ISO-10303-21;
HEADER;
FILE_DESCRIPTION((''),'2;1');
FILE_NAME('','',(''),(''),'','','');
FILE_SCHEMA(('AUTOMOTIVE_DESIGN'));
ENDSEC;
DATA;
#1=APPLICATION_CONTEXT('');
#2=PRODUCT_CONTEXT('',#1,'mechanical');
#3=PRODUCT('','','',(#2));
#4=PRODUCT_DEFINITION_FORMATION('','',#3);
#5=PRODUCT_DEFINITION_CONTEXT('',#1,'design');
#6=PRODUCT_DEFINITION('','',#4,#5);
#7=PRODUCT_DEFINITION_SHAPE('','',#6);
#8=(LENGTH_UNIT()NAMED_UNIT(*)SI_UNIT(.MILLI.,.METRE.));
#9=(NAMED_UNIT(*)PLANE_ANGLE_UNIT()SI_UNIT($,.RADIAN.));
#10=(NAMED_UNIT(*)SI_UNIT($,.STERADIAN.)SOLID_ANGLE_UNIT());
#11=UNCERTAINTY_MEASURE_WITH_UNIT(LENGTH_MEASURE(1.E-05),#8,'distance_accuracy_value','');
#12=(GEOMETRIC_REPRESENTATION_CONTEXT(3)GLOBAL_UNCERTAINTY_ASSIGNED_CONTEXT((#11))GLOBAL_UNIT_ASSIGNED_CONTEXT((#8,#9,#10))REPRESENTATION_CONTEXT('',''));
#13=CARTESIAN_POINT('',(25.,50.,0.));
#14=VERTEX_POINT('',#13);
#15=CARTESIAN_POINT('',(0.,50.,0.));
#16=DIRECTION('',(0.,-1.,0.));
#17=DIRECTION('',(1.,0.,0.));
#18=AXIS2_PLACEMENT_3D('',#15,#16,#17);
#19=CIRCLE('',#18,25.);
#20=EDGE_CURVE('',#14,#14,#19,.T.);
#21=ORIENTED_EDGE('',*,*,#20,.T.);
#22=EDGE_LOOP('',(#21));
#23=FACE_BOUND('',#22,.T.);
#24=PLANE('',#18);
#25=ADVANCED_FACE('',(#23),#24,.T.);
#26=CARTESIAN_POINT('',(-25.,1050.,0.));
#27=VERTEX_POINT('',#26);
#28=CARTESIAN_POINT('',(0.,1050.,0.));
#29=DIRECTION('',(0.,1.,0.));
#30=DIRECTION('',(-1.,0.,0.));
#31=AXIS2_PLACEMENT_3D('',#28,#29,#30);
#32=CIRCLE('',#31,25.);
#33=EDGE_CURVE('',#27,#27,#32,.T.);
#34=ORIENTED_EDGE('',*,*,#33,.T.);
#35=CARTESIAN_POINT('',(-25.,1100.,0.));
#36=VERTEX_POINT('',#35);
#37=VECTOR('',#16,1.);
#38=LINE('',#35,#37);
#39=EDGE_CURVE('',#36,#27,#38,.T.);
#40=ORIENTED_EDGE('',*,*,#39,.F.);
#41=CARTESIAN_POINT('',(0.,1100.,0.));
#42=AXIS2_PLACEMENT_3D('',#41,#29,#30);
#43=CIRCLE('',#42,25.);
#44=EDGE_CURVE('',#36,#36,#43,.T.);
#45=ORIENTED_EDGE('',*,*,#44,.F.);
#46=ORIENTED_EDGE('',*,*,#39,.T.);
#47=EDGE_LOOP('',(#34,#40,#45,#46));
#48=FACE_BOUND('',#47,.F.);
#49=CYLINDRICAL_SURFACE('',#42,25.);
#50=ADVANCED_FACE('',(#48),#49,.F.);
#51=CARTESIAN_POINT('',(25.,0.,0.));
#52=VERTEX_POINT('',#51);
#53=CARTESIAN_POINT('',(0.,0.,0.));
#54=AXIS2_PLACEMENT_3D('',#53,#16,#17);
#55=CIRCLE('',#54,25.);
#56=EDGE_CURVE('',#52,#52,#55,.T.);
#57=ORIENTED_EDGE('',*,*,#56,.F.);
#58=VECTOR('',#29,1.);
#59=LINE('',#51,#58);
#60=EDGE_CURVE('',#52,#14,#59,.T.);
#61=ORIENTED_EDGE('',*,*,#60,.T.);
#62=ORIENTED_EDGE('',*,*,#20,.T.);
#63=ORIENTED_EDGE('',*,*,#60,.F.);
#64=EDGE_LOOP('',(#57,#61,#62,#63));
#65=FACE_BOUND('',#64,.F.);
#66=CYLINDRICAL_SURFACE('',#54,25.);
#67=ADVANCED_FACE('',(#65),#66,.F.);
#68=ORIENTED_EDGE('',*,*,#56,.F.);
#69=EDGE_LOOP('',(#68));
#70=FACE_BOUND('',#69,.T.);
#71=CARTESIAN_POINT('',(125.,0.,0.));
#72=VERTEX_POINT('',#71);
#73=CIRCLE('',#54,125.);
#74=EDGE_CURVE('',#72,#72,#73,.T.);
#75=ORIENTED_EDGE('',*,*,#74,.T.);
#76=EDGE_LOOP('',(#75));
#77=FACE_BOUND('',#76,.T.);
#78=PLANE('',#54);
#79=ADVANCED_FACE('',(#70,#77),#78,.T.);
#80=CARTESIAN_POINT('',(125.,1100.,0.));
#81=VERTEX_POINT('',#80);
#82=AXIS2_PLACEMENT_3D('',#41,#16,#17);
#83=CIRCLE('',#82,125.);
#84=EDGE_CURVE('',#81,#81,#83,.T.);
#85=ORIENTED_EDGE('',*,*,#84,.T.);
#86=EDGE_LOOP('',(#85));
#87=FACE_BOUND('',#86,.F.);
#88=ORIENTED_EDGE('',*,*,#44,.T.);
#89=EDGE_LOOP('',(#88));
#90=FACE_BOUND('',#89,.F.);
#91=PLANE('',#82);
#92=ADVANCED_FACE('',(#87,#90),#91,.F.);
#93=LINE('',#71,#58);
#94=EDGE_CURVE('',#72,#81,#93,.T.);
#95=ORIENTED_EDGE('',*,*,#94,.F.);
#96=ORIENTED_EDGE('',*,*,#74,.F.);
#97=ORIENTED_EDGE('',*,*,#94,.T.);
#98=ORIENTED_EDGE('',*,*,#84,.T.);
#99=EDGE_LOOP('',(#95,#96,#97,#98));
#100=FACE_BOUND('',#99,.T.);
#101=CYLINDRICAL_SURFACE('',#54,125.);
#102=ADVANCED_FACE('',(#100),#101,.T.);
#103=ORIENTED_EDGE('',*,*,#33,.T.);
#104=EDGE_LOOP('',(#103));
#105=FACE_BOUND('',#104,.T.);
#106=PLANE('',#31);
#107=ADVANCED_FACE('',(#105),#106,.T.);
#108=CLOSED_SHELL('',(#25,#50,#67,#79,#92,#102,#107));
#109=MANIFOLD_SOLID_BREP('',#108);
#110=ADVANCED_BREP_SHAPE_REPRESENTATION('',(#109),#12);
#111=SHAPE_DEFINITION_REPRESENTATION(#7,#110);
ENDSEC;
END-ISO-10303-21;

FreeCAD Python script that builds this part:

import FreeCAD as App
import Part
import Sketcher
Q = App.Units.Quantity

doc = App.newDocument("Part")
params = doc.addObject("Spreadsheet::Sheet", "Params")
for row, (alias, value) in enumerate([
    ("sketch1_diameter", "250 mm"),
    ("pad1_length", "1100 mm"),
    ("sketch2_diameter", "50 mm"),
    ("pocket1_length", "50 mm"),
    ("sketch3_diameter", "50 mm"),
    ("pocket2_length", "50 mm"),
], start=1):
    params.set(f"A{row}", alias)
    params.set(f"B{row}", "=" + value)
    params.setAlias(f"B{row}", alias)

body = doc.addObject("PartDesign::Body", "Body")

# Sketch on XZ plane
sketch1 = body.newObject("Sketcher::SketchObject", "Sketch")
sketch1.AttachmentSupport = (doc.getObject("XZ_Plane"), [""])
sketch1.MapMode = "FlatFace"
sketch1.addGeometry(Part.Circle(App.Vector(0, 0, 0), App.Vector(0, 0, 1), 125), False)
sketch1.addConstraint(Sketcher.Constraint("Coincident", 0, 3, -1, 1))
sketch1.addConstraint(Sketcher.Constraint("Diameter", 0, Q("250 mm")))
sketch1.setExpression("Constraints[1]", "Params.sketch1_diameter")
pad1 = body.newObject("PartDesign::Pad", "Pad")
pad1.Profile = sketch1
pad1.setExpression("Length", "Params.pad1_length")
pad1.Reversed = True

# Sketch on XZ plane
sketch2 = body.newObject("Sketcher::SketchObject", "Sketch001")
sketch2.AttachmentSupport = (doc.getObject("XZ_Plane"), [""])
sketch2.MapMode = "FlatFace"
sketch2.addGeometry(Part.Circle(App.Vector(0, 0, 0), App.Vector(0, 0, 1), 25), False)
sketch2.addConstraint(Sketcher.Constraint("Coincident", 0, 3, -1, 1))
sketch2.addConstraint(Sketcher.Constraint("Diameter", 0, Q("50 mm")))
sketch2.setExpression("Constraints[1]", "Params.sketch2_diameter")
pocket1 = body.newObject("PartDesign::Pocket", "Pocket")
pocket1.Profile = sketch2
pocket1.setExpression("Length", "Params.pocket1_length")

# Sketch on XZ plane
sketch3 = body.newObject("Sketcher::SketchObject", "Sketch002")
sketch3.AttachmentSupport = (doc.getObject("XZ_Plane"), [""])
sketch3.MapMode = "FlatFace"
sketch3.AttachmentOffset = App.Placement(App.Vector(0, 0, -1100), App.Rotation())
sketch3.addGeometry(Part.Circle(App.Vector(0, 0, 0), App.Vector(0, 0, 1), 25), False)
sketch3.addConstraint(Sketcher.Constraint("Coincident", 0, 3, -1, 1))
sketch3.addConstraint(Sketcher.Constraint("Diameter", 0, Q("50 mm")))
sketch3.setExpression("Constraints[1]", "Params.sketch3_diameter")
pocket2 = body.newObject("PartDesign::Pocket", "Pocket001")
pocket2.Profile = sketch3
pocket2.setExpression("Length", "Params.pocket2_length")
pocket2.Reversed = True

doc.recompute()
